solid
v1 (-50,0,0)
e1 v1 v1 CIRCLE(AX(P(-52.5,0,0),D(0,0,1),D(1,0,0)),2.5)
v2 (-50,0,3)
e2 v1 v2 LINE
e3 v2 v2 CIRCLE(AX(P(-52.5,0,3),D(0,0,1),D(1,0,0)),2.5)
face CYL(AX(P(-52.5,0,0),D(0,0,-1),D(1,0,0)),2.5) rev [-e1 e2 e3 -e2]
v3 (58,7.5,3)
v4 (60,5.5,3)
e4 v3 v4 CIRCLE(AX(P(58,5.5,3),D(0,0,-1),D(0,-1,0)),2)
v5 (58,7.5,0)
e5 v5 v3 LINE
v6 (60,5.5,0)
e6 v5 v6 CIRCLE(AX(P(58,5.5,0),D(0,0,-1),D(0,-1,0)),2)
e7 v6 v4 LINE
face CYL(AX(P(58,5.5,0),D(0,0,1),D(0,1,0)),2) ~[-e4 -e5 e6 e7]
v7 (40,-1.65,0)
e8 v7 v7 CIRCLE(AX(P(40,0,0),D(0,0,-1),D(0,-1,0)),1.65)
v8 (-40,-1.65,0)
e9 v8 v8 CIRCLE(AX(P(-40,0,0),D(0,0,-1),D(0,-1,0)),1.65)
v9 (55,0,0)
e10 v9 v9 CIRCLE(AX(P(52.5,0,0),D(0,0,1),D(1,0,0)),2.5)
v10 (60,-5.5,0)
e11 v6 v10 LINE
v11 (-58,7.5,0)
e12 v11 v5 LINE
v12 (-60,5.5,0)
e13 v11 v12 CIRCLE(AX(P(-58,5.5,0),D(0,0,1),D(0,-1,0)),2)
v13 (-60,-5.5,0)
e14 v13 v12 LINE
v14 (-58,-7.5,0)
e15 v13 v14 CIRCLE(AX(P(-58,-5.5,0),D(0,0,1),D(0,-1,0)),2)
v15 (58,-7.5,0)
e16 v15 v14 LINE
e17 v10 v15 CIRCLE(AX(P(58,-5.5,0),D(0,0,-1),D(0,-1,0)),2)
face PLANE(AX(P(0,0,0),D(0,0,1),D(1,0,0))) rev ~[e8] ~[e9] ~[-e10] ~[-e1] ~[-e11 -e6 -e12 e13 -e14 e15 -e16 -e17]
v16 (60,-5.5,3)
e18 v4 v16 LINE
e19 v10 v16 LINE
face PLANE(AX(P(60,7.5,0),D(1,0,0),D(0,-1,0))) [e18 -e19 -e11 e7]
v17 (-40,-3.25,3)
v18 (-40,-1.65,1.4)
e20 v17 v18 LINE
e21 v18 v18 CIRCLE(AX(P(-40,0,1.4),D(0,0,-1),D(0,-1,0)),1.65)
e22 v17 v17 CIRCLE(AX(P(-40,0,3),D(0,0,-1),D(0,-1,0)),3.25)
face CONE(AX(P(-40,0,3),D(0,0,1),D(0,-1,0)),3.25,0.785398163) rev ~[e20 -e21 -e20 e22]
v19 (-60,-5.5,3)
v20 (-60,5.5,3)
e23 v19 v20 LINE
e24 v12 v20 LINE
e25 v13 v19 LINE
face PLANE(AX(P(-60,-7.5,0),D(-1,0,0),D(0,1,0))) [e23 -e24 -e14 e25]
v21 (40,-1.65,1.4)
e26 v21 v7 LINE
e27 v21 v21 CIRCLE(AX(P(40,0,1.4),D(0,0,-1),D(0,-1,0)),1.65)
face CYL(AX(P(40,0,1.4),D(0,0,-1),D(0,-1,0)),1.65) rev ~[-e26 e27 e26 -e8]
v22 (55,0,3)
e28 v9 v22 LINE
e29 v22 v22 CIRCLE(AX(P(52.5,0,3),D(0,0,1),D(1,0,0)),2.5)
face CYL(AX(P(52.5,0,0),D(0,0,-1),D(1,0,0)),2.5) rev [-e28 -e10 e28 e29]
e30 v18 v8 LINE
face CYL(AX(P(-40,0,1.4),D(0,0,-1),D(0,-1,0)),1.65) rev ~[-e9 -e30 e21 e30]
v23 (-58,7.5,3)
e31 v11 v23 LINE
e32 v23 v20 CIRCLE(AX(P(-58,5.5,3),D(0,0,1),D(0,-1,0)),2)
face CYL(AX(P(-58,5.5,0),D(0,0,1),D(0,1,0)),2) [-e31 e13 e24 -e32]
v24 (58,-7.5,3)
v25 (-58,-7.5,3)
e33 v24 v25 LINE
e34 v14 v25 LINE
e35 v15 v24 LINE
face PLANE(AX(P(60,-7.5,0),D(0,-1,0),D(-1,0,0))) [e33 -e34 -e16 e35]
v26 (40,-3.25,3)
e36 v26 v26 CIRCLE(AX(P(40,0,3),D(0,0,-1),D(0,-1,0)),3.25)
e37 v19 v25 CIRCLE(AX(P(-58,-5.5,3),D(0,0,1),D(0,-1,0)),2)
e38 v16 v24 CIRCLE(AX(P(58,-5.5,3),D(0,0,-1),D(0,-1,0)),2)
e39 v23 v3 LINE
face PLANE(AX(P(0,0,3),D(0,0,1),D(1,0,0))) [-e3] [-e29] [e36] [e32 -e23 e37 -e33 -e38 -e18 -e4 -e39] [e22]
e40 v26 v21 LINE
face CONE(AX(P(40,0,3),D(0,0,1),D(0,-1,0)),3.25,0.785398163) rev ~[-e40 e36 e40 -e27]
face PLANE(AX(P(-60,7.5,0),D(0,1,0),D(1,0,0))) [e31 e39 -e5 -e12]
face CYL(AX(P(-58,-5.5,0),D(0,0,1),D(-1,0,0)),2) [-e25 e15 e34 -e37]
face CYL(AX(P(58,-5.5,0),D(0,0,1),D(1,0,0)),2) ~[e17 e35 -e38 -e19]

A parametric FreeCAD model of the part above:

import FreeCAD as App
import Part
import Sketcher
from FreeCAD import Vector


def edges_at(feature, points):
    """Names of the edges that pass closest to the given points."""
    edges = feature.Shape.Edges
    near = lambda p: min(range(len(edges)), key=lambda i: edges[i].distToShape(Part.Vertex(*p))[0])
    return sorted({f"Edge{near(p) + 1}" for p in points})


def add_polygon(sketch, points):
    """Adds a closed chain of lines whose ends are joined by coincident constraints."""
    first, n = sketch.GeometryCount, len(points)
    for a, b in zip(points, points[1:] + points[:1]):
        sketch.addGeometry(Part.LineSegment(App.Vector(*a, 0), App.Vector(*b, 0)), False)
    for i in range(n):
        sketch.addConstraint(Sketcher.Constraint("Coincident", first + i, 2, first + (i + 1) % n, 1))

doc = App.newDocument("Part")
body = doc.addObject("PartDesign::Body", "Body")

# Sketch on XY plane
sketch1 = doc.addObject("Sketcher::SketchObject", "Sketch")
body.addObject(sketch1)
sketch1.AttachmentSupport = (doc.XY_Plane, [""])
sketch1.MapMode = "FlatFace"
add_polygon(sketch1, [(60, 7.5), (-60, 7.5), (-60, -7.5), (60, -7.5)])  # lines 0-3
sketch1.addGeometry(Part.Circle(Vector(-52.5, 0, 0), Vector(0, 0, 1), 2.5), False)  # 4
sketch1.addGeometry(Part.Circle(Vector(52.5, 0, 0), Vector(0, 0, 1), 2.5), False)  # 5
sketch1.addConstraint(Sketcher.Constraint("Horizontal", 0))
sketch1.addConstraint(Sketcher.Constraint("Vertical", 1))
sketch1.addConstraint(Sketcher.Constraint("Horizontal", 2))
sketch1.addConstraint(Sketcher.Constraint("Vertical", 3))
sketch1.addConstraint(Sketcher.Constraint("Equal", 4, 5))
sketch1.addConstraint(Sketcher.Constraint("Symmetric", 4, 3, 5, 3, -1, 1))
sketch1.addConstraint(Sketcher.Constraint("Symmetric", 0, 2, 2, 2, -1, 1))
sketch1.addConstraint(Sketcher.Constraint("PointOnObject", 4, 3, -1))
sketch1.addConstraint(Sketcher.Constraint("Diameter", 4, 5.0))
sketch1.addConstraint(Sketcher.Constraint("DistanceX", 0, 2, 0, 1, 120.0))
sketch1.addConstraint(Sketcher.Constraint("DistanceY", 1, 2, 1, 1, 15.0))
sketch1.addConstraint(Sketcher.Constraint("DistanceX", 0, 2, 4, 3, 7.5))
pad1 = doc.addObject("PartDesign::Pad", "Pad")
body.addObject(pad1)
pad1.Profile = sketch1
pad1.Length = 3

# Sketch on XY plane
sketch2 = doc.addObject("Sketcher::SketchObject", "Sketch001")
body.addObject(sketch2)
sketch2.AttachmentSupport = (doc.XY_Plane, [""])
sketch2.MapMode = "FlatFace"
sketch2.AttachmentOffset = App.Placement(Vector(0, 0, 3), App.Rotation())
sketch2.addGeometry(Part.Circle(Vector(-40, 0, 0), Vector(0, 0, 1), 1.6), False)
sketch2.addGeometry(Part.Circle(Vector(40, 0, 0), Vector(0, 0, 1), 1.6), False)
sketch2.addConstraint(Sketcher.Constraint("Equal", 0, 1))
sketch2.addConstraint(Sketcher.Constraint("Symmetric", 0, 3, 1, 3, -1, 1))
sketch2.addConstraint(Sketcher.Constraint("PointOnObject", 0, 3, -1))
sketch2.addConstraint(Sketcher.Constraint("Diameter", 0, 3.3))
sketch2.addConstraint(Sketcher.Constraint("DistanceX", 0, 3, -1, 1, 40.0))
doc.recompute()
hole = doc.addObject("PartDesign::Hole", "Hole")
body.addObject(hole)
hole.Profile = sketch2
hole.ThreadType = "None"
hole.Diameter = 3.3
hole.DepthType = "Dimension"
hole.Depth = 36.25
hole.DrillPoint = "Flat"
hole.HoleCutType = "Countersink"
hole.HoleCutDiameter = 6.5
hole.HoleCutCountersinkAngle = 90
doc.recompute()

fillet = doc.addObject("PartDesign::Fillet", "Fillet")
body.addObject(fillet)
fillet.Base = (hole, edges_at(hole, [
    (-60, 7.5, 1.5),
    (-60, -7.5, 1.5),
    (60, 7.5, 1.5),
    (60, -7.5, 1.5),
]))
fillet.Radius = 2

doc.recompute()
